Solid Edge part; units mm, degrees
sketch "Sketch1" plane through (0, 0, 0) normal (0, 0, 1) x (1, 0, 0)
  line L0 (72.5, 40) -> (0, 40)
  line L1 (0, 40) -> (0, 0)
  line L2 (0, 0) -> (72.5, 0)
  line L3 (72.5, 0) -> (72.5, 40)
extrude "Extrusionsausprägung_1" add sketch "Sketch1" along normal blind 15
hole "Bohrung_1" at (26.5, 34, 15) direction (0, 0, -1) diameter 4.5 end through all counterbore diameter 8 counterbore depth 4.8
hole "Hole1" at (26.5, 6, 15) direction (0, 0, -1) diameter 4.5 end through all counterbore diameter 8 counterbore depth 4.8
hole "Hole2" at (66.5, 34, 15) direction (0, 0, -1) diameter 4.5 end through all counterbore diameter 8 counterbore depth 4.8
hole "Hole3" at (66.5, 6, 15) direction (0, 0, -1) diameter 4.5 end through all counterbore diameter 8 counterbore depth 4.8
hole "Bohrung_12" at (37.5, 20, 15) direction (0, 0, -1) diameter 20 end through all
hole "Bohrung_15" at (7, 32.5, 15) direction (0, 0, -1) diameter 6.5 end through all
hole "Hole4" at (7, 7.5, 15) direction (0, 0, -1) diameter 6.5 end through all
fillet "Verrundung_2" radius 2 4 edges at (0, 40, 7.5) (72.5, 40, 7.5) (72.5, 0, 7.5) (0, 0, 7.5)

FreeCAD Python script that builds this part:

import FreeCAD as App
import Part
import Sketcher
from FreeCAD import Vector
Q = App.Units.Quantity


def edges_at(feature, points):
    """Names of the edges that pass closest to the given points."""
    edges = feature.Shape.Edges
    near = lambda p: min(range(len(edges)), key=lambda i: edges[i].distToShape(Part.Vertex(*p))[0])
    return sorted({f"Edge{near(p) + 1}" for p in points})


def add_polygon(sketch, points):
    """Adds a closed chain of lines whose ends are joined by coincident constraints."""
    first, n = sketch.GeometryCount, len(points)
    for a, b in zip(points, points[1:] + points[:1]):
        sketch.addGeometry(Part.LineSegment(App.Vector(*a, 0), App.Vector(*b, 0)), False)
    for i in range(n):
        sketch.addConstraint(Sketcher.Constraint("Coincident", first + i, 2, first + (i + 1) % n, 1))

doc = App.newDocument("Part")
params = doc.addObject("Spreadsheet::Sheet", "Params")
for row, (alias, value) in enumerate([
    ("sketch1_height", "40 mm"),
    ("sketch1_width", "72.5 mm"),
    ("pad1_length", "15 mm"),
    ("sketch2_diameter", "4.5 mm"),
    ("hole_diameter", "4.5 mm"),
    ("hole_cbore_diameter", "8 mm"),
    ("hole_cbore_depth", "4.8 mm"),
    ("sketch3_diameter", "4.5 mm"),
    ("hole2_diameter", "4.5 mm"),
    ("hole2_cbore_diameter", "8 mm"),
    ("hole2_cbore_depth", "4.8 mm"),
    ("sketch4_diameter", "4.5 mm"),
    ("hole3_diameter", "4.5 mm"),
    ("hole3_cbore_diameter", "8 mm"),
    ("hole3_cbore_depth", "4.8 mm"),
    ("sketch5_diameter", "4.5 mm"),
    ("hole4_diameter", "4.5 mm"),
    ("hole4_cbore_diameter", "8 mm"),
    ("hole4_cbore_depth", "4.8 mm"),
    ("sketch6_diameter", "20 mm"),
    ("hole5_diameter", "20 mm"),
    ("sketch7_diameter", "6.5 mm"),
    ("hole6_diameter", "6.5 mm"),
    ("sketch8_diameter", "6.5 mm"),
    ("hole7_diameter", "6.5 mm"),
    ("fillet_radius", "2 mm"),
], start=1):
    params.set(f"A{row}", alias)
    params.set(f"B{row}", "=" + value)
    params.setAlias(f"B{row}", alias)

body = doc.addObject("PartDesign::Body", "Body")

# Sketch on XY plane
sketch1 = body.newObject("Sketcher::SketchObject", "Sketch")
sketch1.AttachmentSupport = (doc.getObject("XY_Plane"), [""])
sketch1.MapMode = "FlatFace"
add_polygon(sketch1, [(72.5, 0), (72.5, 40), (0, 40), (0, 0)])  # lines 0-3
sketch1.addConstraint([
    Sketcher.Constraint("Vertical", 0),
    Sketcher.Constraint("Horizontal", 1),
    Sketcher.Constraint("Vertical", 2),
    Sketcher.Constraint("Horizontal", 3),
    Sketcher.Constraint("Coincident", 2, 2, -1, 1),
    Sketcher.Constraint("DistanceY", 0, 1, 0, 2, Q("40 mm")),
    Sketcher.Constraint("DistanceX", 1, 2, 1, 1, Q("72.5 mm")),
])
sketch1.setExpression("Constraints[9]", "Params.sketch1_height")
sketch1.setExpression("Constraints[10]", "Params.sketch1_width")
pad1 = body.newObject("PartDesign::Pad", "Pad")
pad1.Profile = sketch1
pad1.setExpression("Length", "Params.pad1_length")

# Sketch on XY plane
sketch2 = body.newObject("Sketcher::SketchObject", "Sketch001")
sketch2.AttachmentSupport = (doc.getObject("XY_Plane"), [""])
sketch2.MapMode = "FlatFace"
sketch2.AttachmentOffset = App.Placement(Vector(0, 0, 15), App.Rotation())
sketch2.addGeometry(Part.Circle(Vector(26.5, 34, 0), Vector(0, 0, 1), 2.25), False)
sketch2.addConstraint([
    Sketcher.Constraint("Diameter", 0, Q("4.5 mm")),
    Sketcher.Constraint("DistanceY", -1, 1, 0, 3, Q("34 mm")),
    Sketcher.Constraint("DistanceX", -1, 1, 0, 3, Q("26.5 mm")),
])
sketch2.setExpression("Constraints[0]", "Params.sketch2_diameter")
doc.recompute()
hole = body.newObject("PartDesign::Hole", "Hole")
hole.Profile = sketch2
hole.ThreadType = "None"
hole.setExpression("Diameter", "Params.hole_diameter")
hole.DepthType = "ThroughAll"
hole.HoleCutType = "Counterbore"
hole.setExpression("HoleCutDiameter", "Params.hole_cbore_diameter")
hole.setExpression("HoleCutDepth", "Params.hole_cbore_depth")

# Sketch on XY plane
sketch3 = body.newObject("Sketcher::SketchObject", "Sketch002")
sketch3.AttachmentSupport = (doc.getObject("XY_Plane"), [""])
sketch3.MapMode = "FlatFace"
sketch3.AttachmentOffset = App.Placement(Vector(0, 0, 15), App.Rotation())
sketch3.addGeometry(Part.Circle(Vector(26.5, 6, 0), Vector(0, 0, 1), 2.25), False)
sketch3.addConstraint([
    Sketcher.Constraint("Diameter", 0, Q("4.5 mm")),
    Sketcher.Constraint("DistanceY", -1, 1, 0, 3, Q("6 mm")),
    Sketcher.Constraint("DistanceX", -1, 1, 0, 3, Q("26.5 mm")),
])
sketch3.setExpression("Constraints[0]", "Params.sketch3_diameter")
doc.recompute()
hole2 = body.newObject("PartDesign::Hole", "Hole001")
hole2.Profile = sketch3
hole2.ThreadType = "None"
hole2.setExpression("Diameter", "Params.hole2_diameter")
hole2.DepthType = "ThroughAll"
hole2.HoleCutType = "Counterbore"
hole2.setExpression("HoleCutDiameter", "Params.hole2_cbore_diameter")
hole2.setExpression("HoleCutDepth", "Params.hole2_cbore_depth")

# Sketch on XY plane
sketch4 = body.newObject("Sketcher::SketchObject", "Sketch003")
sketch4.AttachmentSupport = (doc.getObject("XY_Plane"), [""])
sketch4.MapMode = "FlatFace"
sketch4.AttachmentOffset = App.Placement(Vector(0, 0, 15), App.Rotation())
sketch4.addGeometry(Part.Circle(Vector(66.5, 34, 0), Vector(0, 0, 1), 2.25), False)
sketch4.addConstraint([
    Sketcher.Constraint("Diameter", 0, Q("4.5 mm")),
    Sketcher.Constraint("DistanceY", -1, 1, 0, 3, Q("34 mm")),
    Sketcher.Constraint("DistanceX", -1, 1, 0, 3, Q("66.5 mm")),
])
sketch4.setExpression("Constraints[0]", "Params.sketch4_diameter")
doc.recompute()
hole3 = body.newObject("PartDesign::Hole", "Hole002")
hole3.Profile = sketch4
hole3.ThreadType = "None"
hole3.setExpression("Diameter", "Params.hole3_diameter")
hole3.DepthType = "ThroughAll"
hole3.HoleCutType = "Counterbore"
hole3.setExpression("HoleCutDiameter", "Params.hole3_cbore_diameter")
hole3.setExpression("HoleCutDepth", "Params.hole3_cbore_depth")

# Sketch on XY plane
sketch5 = body.newObject("Sketcher::SketchObject", "Sketch004")
sketch5.AttachmentSupport = (doc.getObject("XY_Plane"), [""])
sketch5.MapMode = "FlatFace"
sketch5.AttachmentOffset = App.Placement(Vector(0, 0, 15), App.Rotation())
sketch5.addGeometry(Part.Circle(Vector(66.5, 6, 0), Vector(0, 0, 1), 2.25), False)
sketch5.addConstraint([
    Sketcher.Constraint("Diameter", 0, Q("4.5 mm")),
    Sketcher.Constraint("DistanceY", -1, 1, 0, 3, Q("6 mm")),
    Sketcher.Constraint("DistanceX", -1, 1, 0, 3, Q("66.5 mm")),
])
sketch5.setExpression("Constraints[0]", "Params.sketch5_diameter")
doc.recompute()
hole4 = body.newObject("PartDesign::Hole", "Hole003")
hole4.Profile = sketch5
hole4.ThreadType = "None"
hole4.setExpression("Diameter", "Params.hole4_diameter")
hole4.DepthType = "ThroughAll"
hole4.HoleCutType = "Counterbore"
hole4.setExpression("HoleCutDiameter", "Params.hole4_cbore_diameter")
hole4.setExpression("HoleCutDepth", "Params.hole4_cbore_depth")

# Sketch on XY plane
sketch6 = body.newObject("Sketcher::SketchObject", "Sketch005")
sketch6.AttachmentSupport = (doc.getObject("XY_Plane"), [""])
sketch6.MapMode = "FlatFace"
sketch6.AttachmentOffset = App.Placement(Vector(0, 0, 15), App.Rotation())
sketch6.addGeometry(Part.Circle(Vector(37.5, 20, 0), Vector(0, 0, 1), 10), False)
sketch6.addConstraint([
    Sketcher.Constraint("Diameter", 0, Q("20 mm")),
    Sketcher.Constraint("DistanceY", -1, 1, 0, 3, Q("20 mm")),
    Sketcher.Constraint("DistanceX", -1, 1, 0, 3, Q("37.5 mm")),
])
sketch6.setExpression("Constraints[0]", "Params.sketch6_diameter")
doc.recompute()
hole5 = body.newObject("PartDesign::Hole", "Hole004")
hole5.Profile = sketch6
hole5.ThreadType = "None"
hole5.setExpression("Diameter", "Params.hole5_diameter")
hole5.DepthType = "ThroughAll"

# Sketch on XY plane
sketch7 = body.newObject("Sketcher::SketchObject", "Sketch006")
sketch7.AttachmentSupport = (doc.getObject("XY_Plane"), [""])
sketch7.MapMode = "FlatFace"
sketch7.AttachmentOffset = App.Placement(Vector(0, 0, 15), App.Rotation())
sketch7.addGeometry(Part.Circle(Vector(7, 32.5, 0), Vector(0, 0, 1), 3.25), False)
sketch7.addConstraint([
    Sketcher.Constraint("Diameter", 0, Q("6.5 mm")),
    Sketcher.Constraint("DistanceX", -1, 1, 0, 3, Q("7 mm")),
    Sketcher.Constraint("DistanceY", -1, 1, 0, 3, Q("32.5 mm")),
])
sketch7.setExpression("Constraints[0]", "Params.sketch7_diameter")
doc.recompute()
hole6 = body.newObject("PartDesign::Hole", "Hole005")
hole6.Profile = sketch7
hole6.ThreadType = "None"
hole6.setExpression("Diameter", "Params.hole6_diameter")
hole6.DepthType = "ThroughAll"

# Sketch on XY plane
sketch8 = body.newObject("Sketcher::SketchObject", "Sketch007")
sketch8.AttachmentSupport = (doc.getObject("XY_Plane"), [""])
sketch8.MapMode = "FlatFace"
sketch8.AttachmentOffset = App.Placement(Vector(0, 0, 15), App.Rotation())
sketch8.addGeometry(Part.Circle(Vector(7, 7.5, 0), Vector(0, 0, 1), 3.25), False)
sketch8.addConstraint([
    Sketcher.Constraint("Diameter", 0, Q("6.5 mm")),
    Sketcher.Constraint("DistanceX", -1, 1, 0, 3, Q("7 mm")),
    Sketcher.Constraint("DistanceY", -1, 1, 0, 3, Q("7.5 mm")),
])
sketch8.setExpression("Constraints[0]", "Params.sketch8_diameter")
doc.recompute()
hole7 = body.newObject("PartDesign::Hole", "Hole006")
hole7.Profile = sketch8
hole7.ThreadType = "None"
hole7.setExpression("Diameter", "Params.hole7_diameter")
hole7.DepthType = "ThroughAll"
doc.recompute()

fillet = body.newObject("PartDesign::Fillet", "Fillet")
fillet.Base = (hole7, edges_at(hole7, [
    (0, 40, 7.5),
    (72.5, 40, 7.5),
    (72.5, 0, 7.5),
    (0, 0, 7.5),
]))
fillet.setExpression("Radius", "Params.fillet_radius")

doc.recompute()
